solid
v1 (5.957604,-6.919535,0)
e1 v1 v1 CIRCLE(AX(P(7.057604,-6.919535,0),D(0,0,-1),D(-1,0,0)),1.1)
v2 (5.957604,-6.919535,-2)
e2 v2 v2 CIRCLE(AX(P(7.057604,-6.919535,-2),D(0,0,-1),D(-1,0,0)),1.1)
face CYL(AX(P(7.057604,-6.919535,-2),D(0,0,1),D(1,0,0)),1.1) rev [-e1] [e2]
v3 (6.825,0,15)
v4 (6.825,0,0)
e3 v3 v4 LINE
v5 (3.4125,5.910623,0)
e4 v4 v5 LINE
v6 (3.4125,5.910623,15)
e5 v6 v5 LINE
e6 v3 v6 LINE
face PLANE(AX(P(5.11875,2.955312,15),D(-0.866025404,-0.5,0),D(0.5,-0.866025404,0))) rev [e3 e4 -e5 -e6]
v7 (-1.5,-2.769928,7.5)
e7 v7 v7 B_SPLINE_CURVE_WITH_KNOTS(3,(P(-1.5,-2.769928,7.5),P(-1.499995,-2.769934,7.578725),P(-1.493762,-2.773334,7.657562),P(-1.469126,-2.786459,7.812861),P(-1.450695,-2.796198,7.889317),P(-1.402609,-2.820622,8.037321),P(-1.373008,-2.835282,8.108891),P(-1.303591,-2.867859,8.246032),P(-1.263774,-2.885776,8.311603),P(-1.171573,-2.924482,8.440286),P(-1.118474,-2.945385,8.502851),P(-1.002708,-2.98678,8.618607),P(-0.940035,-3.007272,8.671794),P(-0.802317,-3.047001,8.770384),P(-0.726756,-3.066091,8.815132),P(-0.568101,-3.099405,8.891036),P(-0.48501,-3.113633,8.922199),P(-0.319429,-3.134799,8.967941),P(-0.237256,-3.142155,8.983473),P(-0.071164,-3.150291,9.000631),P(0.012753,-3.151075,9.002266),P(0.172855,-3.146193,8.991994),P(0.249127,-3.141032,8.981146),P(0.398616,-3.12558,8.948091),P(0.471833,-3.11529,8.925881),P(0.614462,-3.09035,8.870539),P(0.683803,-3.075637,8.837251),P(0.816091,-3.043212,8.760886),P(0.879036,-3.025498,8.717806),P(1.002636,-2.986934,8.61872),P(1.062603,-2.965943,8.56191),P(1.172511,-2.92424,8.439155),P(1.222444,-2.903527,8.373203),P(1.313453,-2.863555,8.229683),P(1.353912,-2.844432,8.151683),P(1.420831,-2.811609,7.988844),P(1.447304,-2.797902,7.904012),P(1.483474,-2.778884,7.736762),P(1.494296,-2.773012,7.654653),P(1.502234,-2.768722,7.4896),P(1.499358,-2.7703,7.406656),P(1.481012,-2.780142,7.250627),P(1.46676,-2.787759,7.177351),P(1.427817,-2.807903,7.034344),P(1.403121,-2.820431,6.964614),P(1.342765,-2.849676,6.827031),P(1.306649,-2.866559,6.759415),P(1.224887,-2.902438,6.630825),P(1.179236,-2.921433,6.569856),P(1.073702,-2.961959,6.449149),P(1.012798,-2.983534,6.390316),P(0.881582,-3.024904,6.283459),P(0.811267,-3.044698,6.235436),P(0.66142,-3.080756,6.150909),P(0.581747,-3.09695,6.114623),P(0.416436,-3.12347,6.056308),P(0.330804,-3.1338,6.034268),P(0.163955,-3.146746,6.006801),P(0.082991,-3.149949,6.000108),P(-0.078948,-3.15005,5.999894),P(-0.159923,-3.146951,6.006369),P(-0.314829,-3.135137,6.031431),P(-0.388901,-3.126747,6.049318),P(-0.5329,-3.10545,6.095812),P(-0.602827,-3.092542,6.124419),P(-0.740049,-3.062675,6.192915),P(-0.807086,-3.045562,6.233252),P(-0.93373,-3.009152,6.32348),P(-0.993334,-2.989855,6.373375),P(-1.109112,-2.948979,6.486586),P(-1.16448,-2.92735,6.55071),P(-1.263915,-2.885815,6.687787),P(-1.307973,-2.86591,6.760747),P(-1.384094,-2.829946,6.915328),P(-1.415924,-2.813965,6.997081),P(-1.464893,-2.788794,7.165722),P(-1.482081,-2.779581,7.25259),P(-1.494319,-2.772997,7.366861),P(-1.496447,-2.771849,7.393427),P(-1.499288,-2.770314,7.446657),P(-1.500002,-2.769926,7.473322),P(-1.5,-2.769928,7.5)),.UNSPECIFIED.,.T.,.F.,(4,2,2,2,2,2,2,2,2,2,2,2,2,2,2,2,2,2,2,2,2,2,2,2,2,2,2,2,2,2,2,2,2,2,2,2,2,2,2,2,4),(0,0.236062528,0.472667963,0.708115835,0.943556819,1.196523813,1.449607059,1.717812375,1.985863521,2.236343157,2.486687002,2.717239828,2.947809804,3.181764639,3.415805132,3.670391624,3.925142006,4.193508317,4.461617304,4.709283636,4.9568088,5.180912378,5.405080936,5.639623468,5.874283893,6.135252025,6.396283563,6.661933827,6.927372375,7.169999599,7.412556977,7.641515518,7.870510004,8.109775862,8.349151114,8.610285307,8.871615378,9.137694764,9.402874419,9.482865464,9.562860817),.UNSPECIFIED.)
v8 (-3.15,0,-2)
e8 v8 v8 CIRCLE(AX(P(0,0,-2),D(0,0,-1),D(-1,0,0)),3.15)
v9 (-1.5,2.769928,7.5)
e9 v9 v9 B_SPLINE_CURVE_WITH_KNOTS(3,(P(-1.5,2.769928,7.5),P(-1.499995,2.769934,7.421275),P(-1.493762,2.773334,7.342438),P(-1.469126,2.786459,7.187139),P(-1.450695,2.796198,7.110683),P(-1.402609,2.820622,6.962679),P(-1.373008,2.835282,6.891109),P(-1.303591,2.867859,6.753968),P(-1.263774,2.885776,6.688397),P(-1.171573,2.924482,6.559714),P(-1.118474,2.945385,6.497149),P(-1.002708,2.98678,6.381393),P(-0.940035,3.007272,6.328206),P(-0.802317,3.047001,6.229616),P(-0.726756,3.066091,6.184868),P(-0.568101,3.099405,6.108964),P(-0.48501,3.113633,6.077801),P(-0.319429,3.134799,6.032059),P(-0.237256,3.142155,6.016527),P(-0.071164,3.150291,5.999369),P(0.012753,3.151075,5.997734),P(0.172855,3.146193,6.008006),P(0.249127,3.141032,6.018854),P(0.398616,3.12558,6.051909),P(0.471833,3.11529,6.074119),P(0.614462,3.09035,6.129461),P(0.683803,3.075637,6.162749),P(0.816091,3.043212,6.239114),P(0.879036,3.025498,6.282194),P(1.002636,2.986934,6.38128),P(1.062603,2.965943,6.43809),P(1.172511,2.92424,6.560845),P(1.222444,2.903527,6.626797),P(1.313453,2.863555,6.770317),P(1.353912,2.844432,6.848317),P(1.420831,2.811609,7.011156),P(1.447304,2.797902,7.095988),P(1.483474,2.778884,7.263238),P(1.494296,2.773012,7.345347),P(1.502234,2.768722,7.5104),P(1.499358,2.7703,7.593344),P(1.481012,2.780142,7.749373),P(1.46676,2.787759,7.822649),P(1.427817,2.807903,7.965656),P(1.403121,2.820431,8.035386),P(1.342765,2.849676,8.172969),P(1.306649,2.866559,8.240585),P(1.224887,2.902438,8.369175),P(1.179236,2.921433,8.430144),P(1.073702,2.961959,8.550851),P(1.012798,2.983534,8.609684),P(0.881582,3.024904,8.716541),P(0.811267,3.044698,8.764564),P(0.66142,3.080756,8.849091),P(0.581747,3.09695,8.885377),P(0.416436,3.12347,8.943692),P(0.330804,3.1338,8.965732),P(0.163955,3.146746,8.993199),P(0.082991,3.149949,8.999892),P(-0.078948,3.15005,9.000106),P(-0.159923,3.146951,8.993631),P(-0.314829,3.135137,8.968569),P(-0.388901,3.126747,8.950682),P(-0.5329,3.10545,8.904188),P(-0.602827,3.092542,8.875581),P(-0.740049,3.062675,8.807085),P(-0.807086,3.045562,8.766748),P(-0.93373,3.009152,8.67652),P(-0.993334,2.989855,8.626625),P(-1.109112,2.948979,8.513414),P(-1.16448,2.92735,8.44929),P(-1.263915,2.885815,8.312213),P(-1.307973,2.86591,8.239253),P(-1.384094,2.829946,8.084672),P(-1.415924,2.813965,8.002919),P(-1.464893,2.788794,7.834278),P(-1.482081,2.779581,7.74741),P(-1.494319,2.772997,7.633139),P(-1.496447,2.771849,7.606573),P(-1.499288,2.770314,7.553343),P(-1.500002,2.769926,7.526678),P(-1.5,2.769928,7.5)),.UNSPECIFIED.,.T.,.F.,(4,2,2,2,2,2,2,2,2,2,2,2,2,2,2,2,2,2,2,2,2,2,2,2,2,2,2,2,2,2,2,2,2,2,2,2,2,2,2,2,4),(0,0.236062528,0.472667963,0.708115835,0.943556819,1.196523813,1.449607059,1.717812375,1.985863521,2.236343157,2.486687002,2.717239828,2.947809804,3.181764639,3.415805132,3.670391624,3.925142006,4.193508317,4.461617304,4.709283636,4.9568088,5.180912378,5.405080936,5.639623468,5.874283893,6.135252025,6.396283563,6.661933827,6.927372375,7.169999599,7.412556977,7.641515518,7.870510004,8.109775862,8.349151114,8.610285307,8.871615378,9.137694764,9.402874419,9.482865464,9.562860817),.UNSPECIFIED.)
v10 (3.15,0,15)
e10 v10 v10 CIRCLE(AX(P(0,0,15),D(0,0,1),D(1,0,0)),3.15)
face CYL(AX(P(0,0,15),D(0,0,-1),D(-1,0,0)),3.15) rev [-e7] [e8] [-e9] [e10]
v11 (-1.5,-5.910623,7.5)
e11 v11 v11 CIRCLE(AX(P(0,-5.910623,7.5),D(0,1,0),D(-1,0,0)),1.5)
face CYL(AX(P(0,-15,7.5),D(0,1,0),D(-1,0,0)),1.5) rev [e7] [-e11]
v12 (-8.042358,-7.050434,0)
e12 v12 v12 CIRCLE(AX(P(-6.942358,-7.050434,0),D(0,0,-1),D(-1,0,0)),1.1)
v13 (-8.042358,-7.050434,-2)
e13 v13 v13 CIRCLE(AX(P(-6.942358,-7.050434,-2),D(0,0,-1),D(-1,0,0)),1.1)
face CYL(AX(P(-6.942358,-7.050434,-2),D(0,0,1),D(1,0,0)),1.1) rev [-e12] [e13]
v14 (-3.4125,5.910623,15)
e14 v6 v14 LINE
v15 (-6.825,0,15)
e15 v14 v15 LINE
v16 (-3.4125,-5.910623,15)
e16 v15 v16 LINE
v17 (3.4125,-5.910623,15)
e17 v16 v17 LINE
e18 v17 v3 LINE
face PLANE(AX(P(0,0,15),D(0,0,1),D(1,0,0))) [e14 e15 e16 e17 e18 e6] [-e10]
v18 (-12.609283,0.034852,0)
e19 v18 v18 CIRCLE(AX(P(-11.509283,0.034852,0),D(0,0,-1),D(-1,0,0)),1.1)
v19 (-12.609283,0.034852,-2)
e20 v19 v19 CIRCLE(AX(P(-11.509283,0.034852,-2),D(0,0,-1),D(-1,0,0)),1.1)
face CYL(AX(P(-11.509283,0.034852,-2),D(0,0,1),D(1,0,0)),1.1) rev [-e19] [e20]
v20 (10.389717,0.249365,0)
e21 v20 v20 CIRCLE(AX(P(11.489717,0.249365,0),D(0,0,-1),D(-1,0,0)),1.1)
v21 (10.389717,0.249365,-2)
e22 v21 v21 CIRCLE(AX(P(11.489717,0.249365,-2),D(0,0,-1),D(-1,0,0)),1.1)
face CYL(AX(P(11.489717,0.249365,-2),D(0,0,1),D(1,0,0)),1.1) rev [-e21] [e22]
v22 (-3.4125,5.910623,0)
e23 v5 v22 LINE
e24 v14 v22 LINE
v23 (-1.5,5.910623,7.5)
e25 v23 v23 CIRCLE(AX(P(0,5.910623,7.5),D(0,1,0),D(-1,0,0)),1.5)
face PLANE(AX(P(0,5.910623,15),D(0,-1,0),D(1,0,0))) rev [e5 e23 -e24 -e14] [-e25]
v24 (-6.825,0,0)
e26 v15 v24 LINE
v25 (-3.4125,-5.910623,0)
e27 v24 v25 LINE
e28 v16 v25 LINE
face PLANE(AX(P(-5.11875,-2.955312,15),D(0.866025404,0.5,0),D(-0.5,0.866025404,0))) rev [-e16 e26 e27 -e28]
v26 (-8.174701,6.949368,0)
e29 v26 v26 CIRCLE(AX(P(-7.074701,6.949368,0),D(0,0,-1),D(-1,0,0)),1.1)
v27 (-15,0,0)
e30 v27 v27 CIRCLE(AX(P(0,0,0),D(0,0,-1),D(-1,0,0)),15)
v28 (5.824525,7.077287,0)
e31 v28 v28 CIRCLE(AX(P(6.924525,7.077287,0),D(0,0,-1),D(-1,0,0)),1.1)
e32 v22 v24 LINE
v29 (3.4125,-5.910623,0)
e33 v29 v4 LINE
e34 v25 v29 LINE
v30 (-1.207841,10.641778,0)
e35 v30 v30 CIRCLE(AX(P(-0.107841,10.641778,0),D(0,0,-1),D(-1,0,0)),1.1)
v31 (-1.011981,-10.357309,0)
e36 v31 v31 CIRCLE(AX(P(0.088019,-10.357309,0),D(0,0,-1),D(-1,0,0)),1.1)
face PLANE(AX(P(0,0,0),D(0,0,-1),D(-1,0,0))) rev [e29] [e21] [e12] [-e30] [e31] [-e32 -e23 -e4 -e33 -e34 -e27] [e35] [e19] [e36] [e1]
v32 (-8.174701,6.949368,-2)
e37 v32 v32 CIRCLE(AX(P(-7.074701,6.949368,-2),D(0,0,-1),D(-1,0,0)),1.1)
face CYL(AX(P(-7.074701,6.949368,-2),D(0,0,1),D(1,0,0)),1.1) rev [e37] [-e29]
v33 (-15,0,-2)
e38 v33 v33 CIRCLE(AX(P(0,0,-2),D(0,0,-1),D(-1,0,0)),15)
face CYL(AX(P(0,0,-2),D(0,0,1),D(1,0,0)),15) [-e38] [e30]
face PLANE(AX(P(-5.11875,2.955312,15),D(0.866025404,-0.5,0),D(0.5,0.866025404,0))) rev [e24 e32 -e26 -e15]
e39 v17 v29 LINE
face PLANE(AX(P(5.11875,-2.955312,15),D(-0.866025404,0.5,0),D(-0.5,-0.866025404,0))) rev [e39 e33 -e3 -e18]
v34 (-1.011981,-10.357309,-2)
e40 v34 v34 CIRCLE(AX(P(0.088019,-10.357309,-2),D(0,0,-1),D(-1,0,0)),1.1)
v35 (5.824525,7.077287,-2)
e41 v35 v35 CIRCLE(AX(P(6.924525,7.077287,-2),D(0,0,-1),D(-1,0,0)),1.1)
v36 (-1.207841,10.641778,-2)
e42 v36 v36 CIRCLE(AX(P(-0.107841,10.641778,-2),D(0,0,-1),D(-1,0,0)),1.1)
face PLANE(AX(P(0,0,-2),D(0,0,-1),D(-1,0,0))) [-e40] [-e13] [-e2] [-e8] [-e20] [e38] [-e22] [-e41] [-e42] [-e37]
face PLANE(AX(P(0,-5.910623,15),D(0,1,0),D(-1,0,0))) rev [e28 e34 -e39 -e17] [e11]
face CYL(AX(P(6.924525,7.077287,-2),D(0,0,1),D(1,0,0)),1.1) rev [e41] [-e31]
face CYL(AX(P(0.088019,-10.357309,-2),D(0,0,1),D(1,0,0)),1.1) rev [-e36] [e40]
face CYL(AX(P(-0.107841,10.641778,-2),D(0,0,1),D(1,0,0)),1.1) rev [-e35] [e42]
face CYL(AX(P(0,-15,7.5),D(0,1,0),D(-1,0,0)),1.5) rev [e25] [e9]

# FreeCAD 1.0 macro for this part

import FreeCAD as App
import Part
import Sketcher
Q = App.Units.Quantity


def add_polygon(sketch, points):
    """Adds a closed chain of lines whose ends are joined by coincident constraints."""
    first, n = sketch.GeometryCount, len(points)
    for a, b in zip(points, points[1:] + points[:1]):
        sketch.addGeometry(Part.LineSegment(App.Vector(*a, 0), App.Vector(*b, 0)), False)
    for i in range(n):
        sketch.addConstraint(Sketcher.Constraint("Coincident", first + i, 2, first + (i + 1) % n, 1))

doc = App.newDocument("Part")
body = doc.addObject("PartDesign::Body", "Body")

# Sketch on XY plane
sketch1 = doc.addObject("Sketcher::SketchObject", "Sketch")
body.addObject(sketch1)
sketch1.AttachmentSupport = (doc.XY_Plane, [""])
sketch1.MapMode = "FlatFace"
add_polygon(sketch1, [(-3.4, -5.9), (3.4, -5.9), (6.8, 0), (3.4, 5.9), (-3.4, 5.9), (-6.8, 0)])  # lines 0-5
sketch1.addGeometry(Part.Circle(App.Vector(0, 0, 0), App.Vector(0, 0, 1), 3.1), False)  # 6
sketch1.addConstraint(Sketcher.Constraint("Horizontal", 0))
sketch1.addConstraint(Sketcher.Constraint("Horizontal", 3))
sketch1.addConstraint(Sketcher.Constraint("Coincident", 6, 3, -1, 1))
sketch1.addConstraint(Sketcher.Constraint("Symmetric", 0, 2, 3, 2, -1, 1))
sketch1.addConstraint(Sketcher.Constraint("Symmetric", 1, 2, 4, 2, -1, 1))
sketch1.addConstraint(Sketcher.Constraint("PointOnObject", 1, 2, -1))
sketch1.addConstraint(Sketcher.Constraint("Parallel", 2, 5))
sketch1.addConstraint(Sketcher.Constraint("Vertical", 0, 2, 2, 2))
sketch1.addConstraint(Sketcher.Constraint("Diameter", 6, 6.3))
sketch1.addConstraint(Sketcher.Constraint("Angle", 1, Q("60 deg")))
sketch1.addConstraint(Sketcher.Constraint("DistanceX", 0, 1, 0, 2, 6.825))
sketch1.addConstraint(Sketcher.Constraint("DistanceX", 4, 2, 1, 2, 13.65))
pad1 = doc.addObject("PartDesign::Pad", "Pad")
body.addObject(pad1)
pad1.Profile = sketch1
pad1.Length = 15

# Sketch on XY plane
sketch2 = doc.addObject("Sketcher::SketchObject", "Sketch001")
body.addObject(sketch2)
sketch2.AttachmentSupport = (doc.XY_Plane, [""])
sketch2.MapMode = "FlatFace"
sketch2.AttachmentOffset = App.Placement(App.Vector(0, 0, -2), App.Rotation())
sketch2.addGeometry(Part.Circle(App.Vector(0, 0, 0), App.Vector(0, 0, 1), 15), False)
sketch2.addGeometry(Part.Circle(App.Vector(7.1, -6.9, 0), App.Vector(0, 0, 1), 1.1), False)
sketch2.addGeometry(Part.Circle(App.Vector(0.1, -10.4, 0), App.Vector(0, 0, 1), 1.1), False)
sketch2.addGeometry(Part.Circle(App.Vector(0, 0, 0), App.Vector(0, 0, 1), 3.1), False)
sketch2.addGeometry(Part.Circle(App.Vector(-6.9, -7.1, 0), App.Vector(0, 0, 1), 1.1), False)
sketch2.addGeometry(Part.Circle(App.Vector(-11.5, 0, 0), App.Vector(0, 0, 1), 1.1), False)
sketch2.addGeometry(Part.Circle(App.Vector(11.5, 0.2, 0), App.Vector(0, 0, 1), 1.1), False)
sketch2.addGeometry(Part.Circle(App.Vector(6.9, 7.1, 0), App.Vector(0, 0, 1), 1.1), False)
sketch2.addGeometry(Part.Circle(App.Vector(-0.1, 10.6, 0), App.Vector(0, 0, 1), 1.1), False)
sketch2.addGeometry(Part.Circle(App.Vector(-7.1, 6.9, 0), App.Vector(0, 0, 1), 1.1), False)
sketch2.addConstraint(Sketcher.Constraint("Coincident", 0, 3, -1, 1))
sketch2.addConstraint(Sketcher.Constraint("Coincident", 3, 3, -1, 1))
sketch2.addConstraint(Sketcher.Constraint("Equal", 1, 2))
sketch2.addConstraint(Sketcher.Constraint("Equal", 2, 4))
sketch2.addConstraint(Sketcher.Constraint("Equal", 4, 5))
sketch2.addConstraint(Sketcher.Constraint("Equal", 5, 6))
sketch2.addConstraint(Sketcher.Constraint("Equal", 6, 7))
sketch2.addConstraint(Sketcher.Constraint("Equal", 7, 8))
sketch2.addConstraint(Sketcher.Constraint("Equal", 8, 9))
sketch2.addConstraint(Sketcher.Constraint("Diameter", 0, 30.0))
sketch2.addConstraint(Sketcher.Constraint("Diameter", 1, 2.2))
sketch2.addConstraint(Sketcher.Constraint("Diameter", 3, 6.3))
sketch2.addConstraint(Sketcher.Constraint("DistanceX", 9, 3, -1, 1, 7.074701))
sketch2.addConstraint(Sketcher.Constraint("DistanceY", 4, 3, 1, 3, 0.130899))
sketch2.addConstraint(Sketcher.Constraint("DistanceX", 5, 3, 2, 3, 11.597302))
sketch2.addConstraint(Sketcher.Constraint("DistanceY", 1, 3, 6, 3, 7.168901))
sketch2.addConstraint(Sketcher.Constraint("DistanceX", -1, 1, 2, 3, 0.088019))
sketch2.addConstraint(Sketcher.Constraint("DistanceY", 2, 3, -1, 1, 10.357309))
sketch2.addConstraint(Sketcher.Constraint("DistanceY", -1, 1, 5, 3, 0.034852))
sketch2.addConstraint(Sketcher.Constraint("DistanceX", 8, 3, -1, 1, 0.107841))
sketch2.addConstraint(Sketcher.Constraint("DistanceY", 6, 3, 7, 3, 6.827921))
sketch2.addConstraint(Sketcher.Constraint("DistanceX", 7, 3, 1, 3, 0.13308))
sketch2.addConstraint(Sketcher.Constraint("DistanceY", 7, 3, 8, 3, 3.564491))
sketch2.addConstraint(Sketcher.Constraint("DistanceX", 8, 3, 6, 3, 11.597558))
sketch2.addConstraint(Sketcher.Constraint("DistanceY", 9, 3, 8, 3, 3.69241))
sketch2.addConstraint(Sketcher.Constraint("DistanceX", -1, 1, 1, 3, 7.057604))
sketch2.addConstraint(Sketcher.Constraint("DistanceY", 1, 3, -1, 1, 6.919535))
sketch2.addConstraint(Sketcher.Constraint("DistanceX", 4, 3, -1, 1, 6.942358))
pad2 = doc.addObject("PartDesign::Pad", "Pad001")
body.addObject(pad2)
pad2.Profile = sketch2
pad2.Length = 2

# Sketch on XZ plane
sketch3 = doc.addObject("Sketcher::SketchObject", "Sketch002")
body.addObject(sketch3)
sketch3.AttachmentSupport = (doc.XZ_Plane, [""])
sketch3.MapMode = "FlatFace"
sketch3.AttachmentOffset = App.Placement(App.Vector(0, 0, -5.910623), App.Rotation())
sketch3.addGeometry(Part.Circle(App.Vector(0, 7.5, 0), App.Vector(0, 0, 1), 1.5), False)
sketch3.addConstraint(Sketcher.Constraint("PointOnObject", 0, 3, -2))
sketch3.addConstraint(Sketcher.Constraint("Diameter", 0, 3.0))
sketch3.addConstraint(Sketcher.Constraint("DistanceY", -1, 1, 0, 3, 7.5))
pocket1 = doc.addObject("PartDesign::Pocket", "Pocket")
body.addObject(pocket1)
pocket1.Profile = sketch3
pocket1.Type = "ThroughAll"
pocket1.Reversed = True

doc.recompute()
